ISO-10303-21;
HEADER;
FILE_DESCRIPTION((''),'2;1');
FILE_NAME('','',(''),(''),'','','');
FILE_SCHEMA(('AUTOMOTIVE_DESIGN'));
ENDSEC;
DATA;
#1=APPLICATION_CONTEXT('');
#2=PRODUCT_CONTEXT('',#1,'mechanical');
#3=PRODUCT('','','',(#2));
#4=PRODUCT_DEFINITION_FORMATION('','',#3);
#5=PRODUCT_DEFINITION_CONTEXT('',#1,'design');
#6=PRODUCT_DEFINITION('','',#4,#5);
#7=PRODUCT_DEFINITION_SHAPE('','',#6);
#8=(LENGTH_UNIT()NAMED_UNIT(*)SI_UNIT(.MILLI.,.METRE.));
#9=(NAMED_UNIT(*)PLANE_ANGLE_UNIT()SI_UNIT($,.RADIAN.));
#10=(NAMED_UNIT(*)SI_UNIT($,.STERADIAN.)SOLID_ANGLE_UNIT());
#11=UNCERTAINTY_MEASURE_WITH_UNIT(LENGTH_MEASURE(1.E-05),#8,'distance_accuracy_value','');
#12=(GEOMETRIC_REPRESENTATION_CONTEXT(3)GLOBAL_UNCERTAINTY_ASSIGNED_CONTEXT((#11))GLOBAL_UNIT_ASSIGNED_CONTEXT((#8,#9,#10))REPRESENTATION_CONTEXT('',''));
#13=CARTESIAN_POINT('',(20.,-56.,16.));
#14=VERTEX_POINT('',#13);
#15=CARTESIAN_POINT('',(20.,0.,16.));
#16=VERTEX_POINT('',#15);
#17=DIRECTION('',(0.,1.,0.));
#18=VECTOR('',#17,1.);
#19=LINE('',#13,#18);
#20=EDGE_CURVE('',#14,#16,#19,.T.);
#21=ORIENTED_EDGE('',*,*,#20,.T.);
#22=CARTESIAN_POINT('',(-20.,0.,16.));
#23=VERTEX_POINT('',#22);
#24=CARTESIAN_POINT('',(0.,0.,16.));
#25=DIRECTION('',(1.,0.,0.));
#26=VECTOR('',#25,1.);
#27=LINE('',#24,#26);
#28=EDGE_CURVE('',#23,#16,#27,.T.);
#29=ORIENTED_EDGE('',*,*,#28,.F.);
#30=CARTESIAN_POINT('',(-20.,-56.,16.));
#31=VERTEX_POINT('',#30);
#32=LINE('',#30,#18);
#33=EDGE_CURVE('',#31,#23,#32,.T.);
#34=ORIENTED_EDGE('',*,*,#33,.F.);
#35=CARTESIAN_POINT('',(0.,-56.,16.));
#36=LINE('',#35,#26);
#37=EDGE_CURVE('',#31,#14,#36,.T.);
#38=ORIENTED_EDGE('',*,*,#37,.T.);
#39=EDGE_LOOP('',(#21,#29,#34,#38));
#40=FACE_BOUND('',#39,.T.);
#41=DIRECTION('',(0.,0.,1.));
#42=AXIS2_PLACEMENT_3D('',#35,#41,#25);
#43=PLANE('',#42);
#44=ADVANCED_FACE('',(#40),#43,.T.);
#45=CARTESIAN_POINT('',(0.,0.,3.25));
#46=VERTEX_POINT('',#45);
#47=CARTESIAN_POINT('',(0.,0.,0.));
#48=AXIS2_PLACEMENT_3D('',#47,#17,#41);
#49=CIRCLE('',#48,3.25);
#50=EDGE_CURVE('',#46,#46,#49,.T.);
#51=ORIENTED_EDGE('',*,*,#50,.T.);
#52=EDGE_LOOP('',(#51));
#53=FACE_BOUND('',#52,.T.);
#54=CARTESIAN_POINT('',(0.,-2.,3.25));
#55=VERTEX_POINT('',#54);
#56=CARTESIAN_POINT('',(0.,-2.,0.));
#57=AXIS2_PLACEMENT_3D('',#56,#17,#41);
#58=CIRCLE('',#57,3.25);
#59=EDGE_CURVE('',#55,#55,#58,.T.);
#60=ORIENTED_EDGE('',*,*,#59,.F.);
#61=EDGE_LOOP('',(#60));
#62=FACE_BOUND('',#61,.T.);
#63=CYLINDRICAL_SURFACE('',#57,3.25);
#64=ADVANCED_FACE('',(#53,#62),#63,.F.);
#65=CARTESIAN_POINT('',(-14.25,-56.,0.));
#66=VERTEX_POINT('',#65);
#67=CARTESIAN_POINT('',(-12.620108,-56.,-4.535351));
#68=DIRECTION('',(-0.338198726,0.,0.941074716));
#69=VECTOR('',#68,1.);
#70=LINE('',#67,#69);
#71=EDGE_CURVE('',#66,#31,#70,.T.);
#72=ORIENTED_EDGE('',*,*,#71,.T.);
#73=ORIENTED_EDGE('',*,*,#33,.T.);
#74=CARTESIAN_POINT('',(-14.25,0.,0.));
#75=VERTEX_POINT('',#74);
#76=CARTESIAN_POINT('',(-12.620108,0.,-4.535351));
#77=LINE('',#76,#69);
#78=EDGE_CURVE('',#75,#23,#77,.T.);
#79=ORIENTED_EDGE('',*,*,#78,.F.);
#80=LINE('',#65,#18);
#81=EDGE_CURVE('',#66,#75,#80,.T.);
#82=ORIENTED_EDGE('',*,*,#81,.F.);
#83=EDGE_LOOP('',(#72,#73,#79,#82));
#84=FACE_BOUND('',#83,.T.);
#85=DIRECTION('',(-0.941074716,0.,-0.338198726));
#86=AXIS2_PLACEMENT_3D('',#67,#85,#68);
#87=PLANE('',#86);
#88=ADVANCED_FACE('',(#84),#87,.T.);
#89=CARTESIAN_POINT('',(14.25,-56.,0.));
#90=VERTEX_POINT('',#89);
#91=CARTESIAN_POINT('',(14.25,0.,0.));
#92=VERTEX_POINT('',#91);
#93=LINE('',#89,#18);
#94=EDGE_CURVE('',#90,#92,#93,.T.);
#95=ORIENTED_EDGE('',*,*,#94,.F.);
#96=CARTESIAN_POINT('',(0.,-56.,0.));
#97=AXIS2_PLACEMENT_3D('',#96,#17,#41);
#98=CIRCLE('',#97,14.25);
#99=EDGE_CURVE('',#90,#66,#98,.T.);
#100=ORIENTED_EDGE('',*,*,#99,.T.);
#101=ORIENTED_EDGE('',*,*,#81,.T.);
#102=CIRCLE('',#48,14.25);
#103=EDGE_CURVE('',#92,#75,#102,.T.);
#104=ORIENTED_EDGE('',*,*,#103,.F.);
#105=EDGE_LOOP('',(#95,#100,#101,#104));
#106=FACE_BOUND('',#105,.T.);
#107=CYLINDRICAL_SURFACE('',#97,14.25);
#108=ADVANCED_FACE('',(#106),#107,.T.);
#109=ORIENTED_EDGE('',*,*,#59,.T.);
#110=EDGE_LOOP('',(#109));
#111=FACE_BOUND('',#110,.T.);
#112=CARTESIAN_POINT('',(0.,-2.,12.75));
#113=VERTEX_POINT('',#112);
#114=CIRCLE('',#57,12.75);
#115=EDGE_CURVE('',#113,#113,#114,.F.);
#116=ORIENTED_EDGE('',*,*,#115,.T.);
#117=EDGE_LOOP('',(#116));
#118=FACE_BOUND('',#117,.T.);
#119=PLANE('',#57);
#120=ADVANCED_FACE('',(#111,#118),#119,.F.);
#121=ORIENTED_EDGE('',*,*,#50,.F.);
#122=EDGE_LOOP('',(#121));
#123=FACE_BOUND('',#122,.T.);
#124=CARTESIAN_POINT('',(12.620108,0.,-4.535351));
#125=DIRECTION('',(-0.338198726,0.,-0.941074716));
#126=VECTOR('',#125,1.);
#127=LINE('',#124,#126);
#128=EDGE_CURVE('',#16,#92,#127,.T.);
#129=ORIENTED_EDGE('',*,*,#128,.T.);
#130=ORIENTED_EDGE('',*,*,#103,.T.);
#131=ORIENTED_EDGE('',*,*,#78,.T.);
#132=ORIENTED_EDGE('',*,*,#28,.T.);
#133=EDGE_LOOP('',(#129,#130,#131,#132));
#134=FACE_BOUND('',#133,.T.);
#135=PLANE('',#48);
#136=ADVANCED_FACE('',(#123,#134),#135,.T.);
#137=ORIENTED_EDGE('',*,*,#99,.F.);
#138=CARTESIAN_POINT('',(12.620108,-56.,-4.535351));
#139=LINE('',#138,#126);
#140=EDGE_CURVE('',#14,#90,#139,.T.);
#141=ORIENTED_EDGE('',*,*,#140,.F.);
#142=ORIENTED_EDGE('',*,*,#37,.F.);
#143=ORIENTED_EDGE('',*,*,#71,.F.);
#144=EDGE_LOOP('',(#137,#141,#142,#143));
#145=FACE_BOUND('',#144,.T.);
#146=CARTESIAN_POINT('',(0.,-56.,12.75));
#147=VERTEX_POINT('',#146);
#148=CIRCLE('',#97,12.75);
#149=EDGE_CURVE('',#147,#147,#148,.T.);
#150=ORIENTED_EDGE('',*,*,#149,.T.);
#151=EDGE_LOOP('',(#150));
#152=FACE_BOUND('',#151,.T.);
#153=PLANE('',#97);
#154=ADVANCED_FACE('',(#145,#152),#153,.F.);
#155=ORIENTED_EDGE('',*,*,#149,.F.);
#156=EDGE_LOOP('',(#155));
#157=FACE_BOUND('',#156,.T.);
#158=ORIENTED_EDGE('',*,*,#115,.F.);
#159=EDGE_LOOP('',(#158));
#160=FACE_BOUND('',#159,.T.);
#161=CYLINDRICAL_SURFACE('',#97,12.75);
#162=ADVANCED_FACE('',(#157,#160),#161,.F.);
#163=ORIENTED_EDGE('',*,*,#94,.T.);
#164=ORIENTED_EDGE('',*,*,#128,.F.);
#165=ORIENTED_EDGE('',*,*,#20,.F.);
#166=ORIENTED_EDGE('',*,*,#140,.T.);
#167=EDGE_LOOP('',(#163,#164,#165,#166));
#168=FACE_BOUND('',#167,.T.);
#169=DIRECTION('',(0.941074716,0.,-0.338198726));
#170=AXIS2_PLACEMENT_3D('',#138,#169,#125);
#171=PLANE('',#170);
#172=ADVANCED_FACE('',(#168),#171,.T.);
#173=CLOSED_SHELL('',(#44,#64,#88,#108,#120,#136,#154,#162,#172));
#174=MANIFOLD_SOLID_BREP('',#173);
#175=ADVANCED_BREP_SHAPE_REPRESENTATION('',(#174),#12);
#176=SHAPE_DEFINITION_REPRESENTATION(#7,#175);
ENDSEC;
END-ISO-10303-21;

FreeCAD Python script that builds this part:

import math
import FreeCAD as App
import Part
import Sketcher
from FreeCAD import Vector

doc = App.newDocument("Part")
body = doc.addObject("PartDesign::Body", "Body")

sketch1 = body.newObject("Sketcher::SketchObject", "Sketch")
sketch1.AttachmentSupport = (doc.getObject("XZ_Plane"), [""])
sketch1.MapMode = "FlatFace"
sketch1.addGeometry([
    Part.LineSegment(Vector(-20, 16, 0), Vector(20, 16, 0)),
    Part.LineSegment(Vector(20, 16, 0), Vector(14, 0, 0)),
    Part.ArcOfCircle(Part.Circle(Vector(0, 0, 0), Vector(0, 0, 1), 14), math.radians(180), math.radians(360)),
    Part.LineSegment(Vector(-14, 0, 0), Vector(-20, 16, 0)),
    Part.Circle(Vector(0, 0, 0), Vector(0, 0, 1), 13),
], False)
sketch1.addConstraint([
    Sketcher.Constraint("Coincident", 0, 2, 1, 1),
    Sketcher.Constraint("Coincident", 1, 2, 2, 2),
    Sketcher.Constraint("Coincident", 2, 1, 3, 1),
    Sketcher.Constraint("Coincident", 3, 2, 0, 1),
    Sketcher.Constraint("Horizontal", 0),
    Sketcher.Constraint("Coincident", 2, 3, -1, 1),
    Sketcher.Constraint("Coincident", 4, 3, -1, 1),
    Sketcher.Constraint("PointOnObject", 1, 2, -1),
    Sketcher.Constraint("PointOnObject", 2, 1, -1),
    Sketcher.Constraint("Equal", 1, 3),
    Sketcher.Constraint("Diameter", 4, 25.5),
    Sketcher.Constraint("DistanceX", 0, 1, 0, 2, 40.0),
    Sketcher.Constraint("Radius", 2, 14.25),
    Sketcher.Constraint("DistanceY", -1, 1, 0, 2, 16.0),
])
pad1 = body.newObject("PartDesign::Pad", "Pad")
pad1.Profile = sketch1
pad1.Length = 56

sketch2 = body.newObject("Sketcher::SketchObject", "Sketch001")
sketch2.AttachmentSupport = (doc.getObject("XZ_Plane"), [""])
sketch2.MapMode = "FlatFace"
sketch2.addGeometry([
    Part.Circle(Vector(0, 0, 0), Vector(0, 0, 1), 12.8),
    Part.Circle(Vector(0, 0, 0), Vector(0, 0, 1), 3.2),
], False)
sketch2.addConstraint([
    Sketcher.Constraint("Coincident", 0, 3, -1, 1),
    Sketcher.Constraint("Coincident", 1, 3, -1, 1),
    Sketcher.Constraint("Diameter", 0, 25.5),
    Sketcher.Constraint("Diameter", 1, 6.5),
])
pad2 = body.newObject("PartDesign::Pad", "Pad001")
pad2.Profile = sketch2
pad2.Length = 2

doc.recompute()
